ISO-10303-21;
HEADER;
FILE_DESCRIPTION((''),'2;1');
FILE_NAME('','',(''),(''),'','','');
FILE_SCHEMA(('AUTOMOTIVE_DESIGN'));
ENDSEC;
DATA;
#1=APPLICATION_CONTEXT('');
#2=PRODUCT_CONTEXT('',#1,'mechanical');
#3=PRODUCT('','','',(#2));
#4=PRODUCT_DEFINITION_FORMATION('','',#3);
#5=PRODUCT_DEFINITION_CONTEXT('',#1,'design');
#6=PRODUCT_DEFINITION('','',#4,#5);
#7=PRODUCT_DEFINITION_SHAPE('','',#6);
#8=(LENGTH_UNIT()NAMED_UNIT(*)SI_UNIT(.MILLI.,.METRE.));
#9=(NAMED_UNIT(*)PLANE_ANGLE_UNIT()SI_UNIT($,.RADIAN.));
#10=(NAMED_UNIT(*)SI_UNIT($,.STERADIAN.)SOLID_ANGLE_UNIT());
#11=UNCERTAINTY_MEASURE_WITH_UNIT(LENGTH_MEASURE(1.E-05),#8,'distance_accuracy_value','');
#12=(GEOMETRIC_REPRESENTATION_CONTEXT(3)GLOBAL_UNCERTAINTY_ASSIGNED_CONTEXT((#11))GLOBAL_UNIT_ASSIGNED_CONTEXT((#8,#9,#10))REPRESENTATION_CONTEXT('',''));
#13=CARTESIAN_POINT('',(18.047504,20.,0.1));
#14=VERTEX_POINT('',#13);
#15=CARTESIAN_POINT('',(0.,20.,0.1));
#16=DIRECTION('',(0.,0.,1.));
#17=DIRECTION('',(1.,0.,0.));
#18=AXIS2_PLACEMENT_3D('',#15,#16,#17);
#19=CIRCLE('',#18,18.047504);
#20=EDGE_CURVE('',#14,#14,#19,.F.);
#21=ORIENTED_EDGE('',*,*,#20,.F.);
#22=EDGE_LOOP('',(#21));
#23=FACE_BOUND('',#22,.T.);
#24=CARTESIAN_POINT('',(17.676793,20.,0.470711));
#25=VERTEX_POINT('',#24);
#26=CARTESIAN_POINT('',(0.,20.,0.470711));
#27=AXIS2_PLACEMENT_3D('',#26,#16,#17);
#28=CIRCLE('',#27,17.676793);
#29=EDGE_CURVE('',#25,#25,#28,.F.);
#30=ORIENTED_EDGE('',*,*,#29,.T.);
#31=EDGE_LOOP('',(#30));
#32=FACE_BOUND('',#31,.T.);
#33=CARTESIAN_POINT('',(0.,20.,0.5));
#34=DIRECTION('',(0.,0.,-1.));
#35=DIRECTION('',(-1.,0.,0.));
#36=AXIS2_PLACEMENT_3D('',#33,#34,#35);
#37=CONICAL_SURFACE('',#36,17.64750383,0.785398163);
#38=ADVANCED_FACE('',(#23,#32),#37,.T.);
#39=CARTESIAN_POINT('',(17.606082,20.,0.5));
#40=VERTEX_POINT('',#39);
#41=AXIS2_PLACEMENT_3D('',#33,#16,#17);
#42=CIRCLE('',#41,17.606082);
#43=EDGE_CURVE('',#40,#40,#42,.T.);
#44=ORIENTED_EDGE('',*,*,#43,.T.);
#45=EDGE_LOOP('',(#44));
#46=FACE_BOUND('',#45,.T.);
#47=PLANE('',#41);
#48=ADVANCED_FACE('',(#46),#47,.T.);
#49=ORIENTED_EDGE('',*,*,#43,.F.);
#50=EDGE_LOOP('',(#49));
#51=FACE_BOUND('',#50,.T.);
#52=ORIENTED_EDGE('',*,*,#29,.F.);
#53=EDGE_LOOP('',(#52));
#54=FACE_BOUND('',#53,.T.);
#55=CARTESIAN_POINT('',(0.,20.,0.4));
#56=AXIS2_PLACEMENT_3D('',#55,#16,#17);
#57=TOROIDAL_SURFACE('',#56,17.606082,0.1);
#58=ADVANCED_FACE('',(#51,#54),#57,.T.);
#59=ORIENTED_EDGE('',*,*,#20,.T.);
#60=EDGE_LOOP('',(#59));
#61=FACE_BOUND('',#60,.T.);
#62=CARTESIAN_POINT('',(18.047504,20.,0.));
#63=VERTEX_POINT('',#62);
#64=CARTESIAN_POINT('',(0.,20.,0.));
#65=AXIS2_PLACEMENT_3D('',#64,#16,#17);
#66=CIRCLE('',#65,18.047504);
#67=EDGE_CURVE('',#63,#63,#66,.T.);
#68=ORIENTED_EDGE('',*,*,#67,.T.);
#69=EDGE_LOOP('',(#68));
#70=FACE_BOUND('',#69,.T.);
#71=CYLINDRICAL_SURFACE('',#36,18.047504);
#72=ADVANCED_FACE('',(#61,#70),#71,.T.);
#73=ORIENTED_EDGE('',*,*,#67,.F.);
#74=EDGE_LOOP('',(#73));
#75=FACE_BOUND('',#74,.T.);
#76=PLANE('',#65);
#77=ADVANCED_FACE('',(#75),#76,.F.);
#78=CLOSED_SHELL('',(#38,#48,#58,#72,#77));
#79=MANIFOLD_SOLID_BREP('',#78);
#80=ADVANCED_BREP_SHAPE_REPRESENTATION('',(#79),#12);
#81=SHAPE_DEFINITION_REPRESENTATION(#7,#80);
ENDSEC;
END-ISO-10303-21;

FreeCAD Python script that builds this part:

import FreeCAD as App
import Part
import Sketcher
from FreeCAD import Vector
Q = App.Units.Quantity


def edges_at(feature, points):
    """Names of the edges that pass closest to the given points."""
    edges = feature.Shape.Edges
    near = lambda p: min(range(len(edges)), key=lambda i: edges[i].distToShape(Part.Vertex(*p))[0])
    return sorted({f"Edge{near(p) + 1}" for p in points})

doc = App.newDocument("Part")
params = doc.addObject("Spreadsheet::Sheet", "Params")
for row, (alias, value) in enumerate([
    ("pad1_length", "0.5 mm"),
    ("chamfer_size", "0.4 mm"),
    ("fillet_radius", "0.1 mm"),
], start=1):
    params.set(f"A{row}", alias)
    params.set(f"B{row}", "=" + value)
    params.setAlias(f"B{row}", alias)

body = doc.addObject("PartDesign::Body", "Body")

# Sketch on XY plane
sketch1 = body.newObject("Sketcher::SketchObject", "Sketch")
sketch1.AttachmentSupport = (doc.getObject("XY_Plane"), [""])
sketch1.MapMode = "FlatFace"
sketch1.addGeometry(Part.Circle(Vector(0, 20, 0), Vector(0, 0, 1), 18), False)
sketch1.addConstraint([
    Sketcher.Constraint("PointOnObject", 0, 3, -2),
    Sketcher.Constraint("DistanceY", -1, 1, 0, 3, Q("20 mm")),
    Sketcher.Constraint("Diameter", 0, Q("36.095008 mm")),
])
pad1 = body.newObject("PartDesign::Pad", "Pad")
pad1.Profile = sketch1
pad1.setExpression("Length", "Params.pad1_length")
doc.recompute()

chamfer = body.newObject("PartDesign::Chamfer", "Chamfer")
chamfer.Base = (pad1, edges_at(pad1, [(-18.048, 20, 0.5)]))
chamfer.setExpression("Size", "Params.chamfer_size")
doc.recompute()

fillet = body.newObject("PartDesign::Fillet", "Fillet")
fillet.Base = (chamfer, edges_at(chamfer, [(-17.648, 20, 0.5)]))
fillet.setExpression("Radius", "Params.fillet_radius")

doc.recompute()
